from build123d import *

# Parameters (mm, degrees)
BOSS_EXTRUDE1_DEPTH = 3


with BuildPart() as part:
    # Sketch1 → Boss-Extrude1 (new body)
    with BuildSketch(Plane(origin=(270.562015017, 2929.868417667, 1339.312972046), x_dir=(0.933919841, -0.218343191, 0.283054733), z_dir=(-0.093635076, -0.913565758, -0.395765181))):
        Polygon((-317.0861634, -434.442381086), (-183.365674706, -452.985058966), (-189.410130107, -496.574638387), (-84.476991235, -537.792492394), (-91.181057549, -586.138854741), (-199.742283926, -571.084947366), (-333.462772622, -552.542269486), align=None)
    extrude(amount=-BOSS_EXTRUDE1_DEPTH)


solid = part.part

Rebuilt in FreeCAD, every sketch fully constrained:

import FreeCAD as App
import Part
import Sketcher


def add_polygon(sketch, points):
    """Adds a closed chain of lines whose ends are joined by coincident constraints."""
    first, n = sketch.GeometryCount, len(points)
    for a, b in zip(points, points[1:] + points[:1]):
        sketch.addGeometry(Part.LineSegment(App.Vector(*a, 0), App.Vector(*b, 0)), False)
    for i in range(n):
        sketch.addConstraint(Sketcher.Constraint("Coincident", first + i, 2, first + (i + 1) % n, 1))

doc = App.newDocument("Part")
body = doc.addObject("PartDesign::Body", "Body")

sketch1 = doc.addObject("Sketcher::SketchObject", "Sketch")
body.addObject(sketch1)
sketch1.Placement = App.Placement(App.Vector(270.562015, 2929.868418, 1339.312972), App.Rotation(App.Vector(0.933919841, -0.218343191, 0.283054733), App.Vector(-0.345001744, -0.343109103, 0.873641769), App.Vector(-0.093635076, -0.913565758, -0.395765181), "ZXY"))
add_polygon(sketch1, [(-183, -453), (-317, -434), (-333, -553), (-91, -586), (-84, -538), (-189, -497)])
sketch1.addConstraint(Sketcher.Constraint("Perpendicular", 0, 1))
sketch1.addConstraint(Sketcher.Constraint("Perpendicular", 1, 2))
sketch1.addConstraint(Sketcher.Constraint("Perpendicular", 2, 3))
sketch1.addConstraint(Sketcher.Constraint("Parallel", 3, 5))
sketch1.addConstraint(Sketcher.Constraint("Distance", 0, 135.0))
sketch1.addConstraint(Sketcher.Constraint("Distance", 2, 244.6))
sketch1.addConstraint(Sketcher.Constraint("Distance", 4, 112.738082))
sketch1.addConstraint(Sketcher.Constraint("Distance", 5, 44.006669))
sketch1.addConstraint(Sketcher.Constraint("DistanceY", 0, 2, -1, 1, 434.442381))
sketch1.addConstraint(Sketcher.Constraint("DistanceY", 1, 2, -1, 1, 552.54227))
sketch1.addConstraint(Sketcher.Constraint("DistanceX", 3, 2, -1, 1, 84.476991))
sketch1.addConstraint(Sketcher.Constraint("DistanceX", 4, 2, -1, 1, 189.41013))
pad1 = doc.addObject("PartDesign::Pad", "Pad")
body.addObject(pad1)
pad1.Profile = sketch1
pad1.Length = 3
pad1.Reversed = True

doc.recompute()
